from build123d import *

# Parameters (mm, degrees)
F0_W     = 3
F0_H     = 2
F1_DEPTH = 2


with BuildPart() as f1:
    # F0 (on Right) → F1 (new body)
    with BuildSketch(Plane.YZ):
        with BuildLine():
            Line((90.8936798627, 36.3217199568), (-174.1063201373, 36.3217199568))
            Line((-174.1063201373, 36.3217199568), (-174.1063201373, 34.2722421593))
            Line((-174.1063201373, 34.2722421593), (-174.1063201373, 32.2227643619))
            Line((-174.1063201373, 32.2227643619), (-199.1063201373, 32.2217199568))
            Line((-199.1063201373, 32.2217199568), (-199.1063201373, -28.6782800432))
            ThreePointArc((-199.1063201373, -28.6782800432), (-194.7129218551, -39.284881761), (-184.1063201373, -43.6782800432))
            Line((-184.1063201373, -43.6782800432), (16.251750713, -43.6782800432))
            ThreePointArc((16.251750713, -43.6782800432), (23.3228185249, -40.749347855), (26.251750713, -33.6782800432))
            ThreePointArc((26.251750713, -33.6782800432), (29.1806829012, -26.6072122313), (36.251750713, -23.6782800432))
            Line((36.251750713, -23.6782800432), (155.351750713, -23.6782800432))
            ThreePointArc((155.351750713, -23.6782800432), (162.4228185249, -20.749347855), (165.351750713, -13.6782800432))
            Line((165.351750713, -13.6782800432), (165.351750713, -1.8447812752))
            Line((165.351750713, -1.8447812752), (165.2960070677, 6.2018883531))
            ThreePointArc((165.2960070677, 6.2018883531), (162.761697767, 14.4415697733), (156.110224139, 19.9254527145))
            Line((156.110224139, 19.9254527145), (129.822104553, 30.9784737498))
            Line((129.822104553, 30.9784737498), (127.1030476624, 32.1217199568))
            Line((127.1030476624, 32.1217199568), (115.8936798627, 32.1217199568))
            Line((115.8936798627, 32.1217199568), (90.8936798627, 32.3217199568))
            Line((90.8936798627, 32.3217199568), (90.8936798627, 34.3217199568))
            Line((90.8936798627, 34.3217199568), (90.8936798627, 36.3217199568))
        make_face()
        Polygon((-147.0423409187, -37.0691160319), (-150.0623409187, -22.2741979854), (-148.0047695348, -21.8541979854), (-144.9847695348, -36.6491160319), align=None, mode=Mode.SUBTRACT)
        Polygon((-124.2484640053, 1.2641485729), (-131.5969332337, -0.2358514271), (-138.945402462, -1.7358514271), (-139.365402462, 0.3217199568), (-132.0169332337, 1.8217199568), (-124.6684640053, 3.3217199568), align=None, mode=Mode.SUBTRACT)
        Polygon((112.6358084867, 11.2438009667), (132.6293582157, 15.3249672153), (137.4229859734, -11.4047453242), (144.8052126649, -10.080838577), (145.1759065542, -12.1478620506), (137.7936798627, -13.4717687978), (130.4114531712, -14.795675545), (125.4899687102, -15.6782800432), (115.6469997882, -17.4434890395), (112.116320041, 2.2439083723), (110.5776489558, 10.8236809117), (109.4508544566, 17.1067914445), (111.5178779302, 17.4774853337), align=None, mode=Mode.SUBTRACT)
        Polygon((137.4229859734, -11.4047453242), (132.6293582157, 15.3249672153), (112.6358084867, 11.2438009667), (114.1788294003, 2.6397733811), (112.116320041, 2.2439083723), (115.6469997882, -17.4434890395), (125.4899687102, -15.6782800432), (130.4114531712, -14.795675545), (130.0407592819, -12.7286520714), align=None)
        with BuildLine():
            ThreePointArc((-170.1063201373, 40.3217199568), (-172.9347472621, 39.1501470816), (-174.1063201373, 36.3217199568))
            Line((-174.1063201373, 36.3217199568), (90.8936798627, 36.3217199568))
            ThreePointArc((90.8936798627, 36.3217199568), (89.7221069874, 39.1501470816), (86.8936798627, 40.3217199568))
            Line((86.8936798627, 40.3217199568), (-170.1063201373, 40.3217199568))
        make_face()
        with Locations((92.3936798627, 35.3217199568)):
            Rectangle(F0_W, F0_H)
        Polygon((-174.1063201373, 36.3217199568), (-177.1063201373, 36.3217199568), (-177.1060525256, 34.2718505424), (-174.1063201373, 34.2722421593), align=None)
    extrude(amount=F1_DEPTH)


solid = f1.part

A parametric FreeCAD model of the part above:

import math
import FreeCAD as App
import Part
import Sketcher

V = App.Vector
Q = App.Units.Quantity


def add_polygon(sketch, points):
    """Adds a closed chain of lines whose ends are joined by coincident constraints."""
    first, n = sketch.GeometryCount, len(points)
    for a, b in zip(points, points[1:] + points[:1]):
        sketch.addGeometry(Part.LineSegment(App.Vector(*a, 0), App.Vector(*b, 0)), False)
    for i in range(n):
        sketch.addConstraint(Sketcher.Constraint("Coincident", first + i, 2, first + (i + 1) % n, 1))

doc = App.newDocument("Part")
params = doc.addObject("Spreadsheet::Sheet", "Params")
for row, (alias, value) in enumerate([
    ("sketch1_radius", "15 mm"),
    ("sketch1_radius2", "10 mm"),
    ("sketch1_radius3", "4 mm"),
    ("sketch1_width", "3 mm"),
    ("sketch1_width2", "257 mm"),
    ("pad1_length", "2 mm"),
], start=1):
    params.set(f"A{row}", alias)
    params.set(f"B{row}", "=" + value)
    params.setAlias(f"B{row}", alias)

body = doc.addObject("PartDesign::Body", "Body")

sketch1 = body.newObject("Sketcher::SketchObject", "Sketch")
sketch1.AttachmentSupport = (doc.getObject("YZ_Plane"), [""])
sketch1.MapMode = "FlatFace"
sketch1.addGeometry(Part.LineSegment(V(-174.1, 34.3, 0), V(-174.1, 32.2, 0)), False)
sketch1.addGeometry(Part.LineSegment(V(-174.1, 32.2, 0), V(-199.1, 32.2, 0)), False)
sketch1.addGeometry(Part.LineSegment(V(-199.1, 32.2, 0), V(-199.1, -28.7, 0)), False)
sketch1.addGeometry(Part.ArcOfCircle(Part.Circle(V(-184.1, -28.7, 0), V(0, 0, 1), 15), math.radians(180), math.radians(270)), False)
sketch1.addGeometry(Part.LineSegment(V(-184.1, -43.7, 0), V(16.3, -43.7, 0)), False)
sketch1.addGeometry(Part.ArcOfCircle(Part.Circle(V(16.3, -33.7, 0), V(0, 0, 1), 10), math.radians(-90), math.radians(0)), False)
sketch1.addGeometry(Part.ArcOfCircle(Part.Circle(V(36.3, -33.7, 0), V(0, 0, 1), 10), math.radians(90), math.radians(180)), False)
sketch1.addGeometry(Part.LineSegment(V(36.3, -23.7, 0), V(155.4, -23.7, 0)), False)
sketch1.addGeometry(Part.ArcOfCircle(Part.Circle(V(155.4, -13.7, 0), V(0, 0, 1), 10), math.radians(-90), math.radians(0)), False)
sketch1.addGeometry(Part.LineSegment(V(165.4, -13.7, 0), V(165.4, -1.8, 0)), False)
sketch1.addGeometry(Part.LineSegment(V(165.4, -1.8, 0), V(165.3, 6.2, 0)), False)
sketch1.addGeometry(Part.ArcOfCircle(Part.Circle(V(150.3, 6.1, 0), V(0, 0, 1), 15), math.radians(0), math.radians(67)), False)
sketch1.addGeometry(Part.LineSegment(V(156.1, 19.9, 0), V(129.8, 31, 0)), False)
sketch1.addGeometry(Part.LineSegment(V(129.8, 31, 0), V(127.1, 32.1, 0)), False)
sketch1.addGeometry(Part.LineSegment(V(127.1, 32.1, 0), V(115.9, 32.1, 0)), False)
sketch1.addGeometry(Part.LineSegment(V(115.9, 32.1, 0), V(90.9, 32.3, 0)), False)
sketch1.addGeometry(Part.LineSegment(V(90.9, 32.3, 0), V(90.9, 34.3, 0)), False)
sketch1.addGeometry(Part.LineSegment(V(90.9, 34.3, 0), V(93.9, 34.3, 0)), False)
sketch1.addGeometry(Part.LineSegment(V(93.9, 34.3, 0), V(93.9, 36.3, 0)), False)
sketch1.addGeometry(Part.LineSegment(V(93.9, 36.3, 0), V(90.9, 36.3, 0)), False)
sketch1.addGeometry(Part.ArcOfCircle(Part.Circle(V(86.9, 36.3, 0), V(0, 0, 1), 4), math.radians(0), math.radians(90)), False)
sketch1.addGeometry(Part.LineSegment(V(86.9, 40.3, 0), V(-170.1, 40.3, 0)), False)
sketch1.addGeometry(Part.ArcOfCircle(Part.Circle(V(-170.1, 36.3, 0), V(0, 0, 1), 4), math.radians(90), math.radians(180)), False)
sketch1.addGeometry(Part.LineSegment(V(-174.1, 36.3, 0), V(-177.1, 36.3, 0)), False)
sketch1.addGeometry(Part.LineSegment(V(-177.1, 36.3, 0), V(-177.1, 34.3, 0)), False)
sketch1.addGeometry(Part.LineSegment(V(-177.1, 34.3, 0), V(-174.1, 34.3, 0)), False)
add_polygon(sketch1, [(-145, -36.6), (-147, -37.1), (-150.1, -22.3), (-148, -21.9)])
add_polygon(sketch1, [(-124.7, 3.3), (-124.2, 1.3), (-131.6, -0.2), (-138.9, -1.7), (-139.4, 0.3), (-132, 1.8)])
add_polygon(sketch1, [(111.5, 17.5), (112.6, 11.2), (114.2, 2.6), (112.1, 2.2), (110.6, 10.8), (109.5, 17.1)])
add_polygon(sketch1, [(144.8, -10.1), (145.2, -12.1), (130.4, -14.8), (130, -12.7)])
sketch1.addConstraint([
    Sketcher.Constraint("Coincident", 0, 2, 1, 1),
    Sketcher.Constraint("Coincident", 1, 2, 2, 1),
    Sketcher.Constraint("Tangent", 2, 2, 3, 1),
    Sketcher.Constraint("Tangent", 3, 2, 4, 1),
    Sketcher.Constraint("Tangent", 4, 2, 5, 1),
    Sketcher.Constraint("Tangent", 5, 2, 6, 2),
    Sketcher.Constraint("Tangent", 6, 1, 7, 1),
    Sketcher.Constraint("Tangent", 7, 2, 8, 1),
    Sketcher.Constraint("Tangent", 8, 2, 9, 1),
    Sketcher.Constraint("Coincident", 9, 2, 10, 1),
    Sketcher.Constraint("Tangent", 10, 2, 11, 1),
    Sketcher.Constraint("Tangent", 11, 2, 12, 1),
    Sketcher.Constraint("Coincident", 12, 2, 13, 1),
    Sketcher.Constraint("Coincident", 13, 2, 14, 1),
    Sketcher.Constraint("Coincident", 14, 2, 15, 1),
    Sketcher.Constraint("Coincident", 15, 2, 16, 1),
    Sketcher.Constraint("Coincident", 16, 2, 17, 1),
    Sketcher.Constraint("Coincident", 17, 2, 18, 1),
    Sketcher.Constraint("Coincident", 18, 2, 19, 1),
    Sketcher.Constraint("Coincident", 19, 2, 20, 1),
    Sketcher.Constraint("Tangent", 20, 2, 21, 1),
    Sketcher.Constraint("Tangent", 21, 2, 22, 1),
    Sketcher.Constraint("Coincident", 22, 2, 23, 1),
    Sketcher.Constraint("Coincident", 23, 2, 24, 1),
    Sketcher.Constraint("Coincident", 24, 2, 25, 1),
    Sketcher.Constraint("Coincident", 25, 2, 0, 1),
    Sketcher.Constraint("Vertical", 0),
    Sketcher.Constraint("Vertical", 2),
    Sketcher.Constraint("Horizontal", 4),
    Sketcher.Constraint("Horizontal", 7),
    Sketcher.Constraint("Vertical", 9),
    Sketcher.Constraint("Horizontal", 14),
    Sketcher.Constraint("Vertical", 16),
    Sketcher.Constraint("Horizontal", 17),
    Sketcher.Constraint("Vertical", 18),
    Sketcher.Constraint("Horizontal", 19),
    Sketcher.Constraint("Horizontal", 21),
    Sketcher.Constraint("Horizontal", 23),
    Sketcher.Constraint("Equal", 5, 6),
    Sketcher.Constraint("Equal", 6, 8),
    Sketcher.Constraint("Equal", 3, 11),
    Sketcher.Constraint("Equal", 20, 22),
    Sketcher.Constraint("Parallel", 12, 13),
    Sketcher.Constraint("Perpendicular", 24, 25),
    Sketcher.Constraint("Perpendicular", 26, 27),
    Sketcher.Constraint("Perpendicular", 27, 28),
    Sketcher.Constraint("Perpendicular", 28, 29),
    Sketcher.Constraint("Parallel", 29, 30),
    Sketcher.Constraint("Perpendicular", 30, 31),
    Sketcher.Constraint("Parallel", 31, 32),
    Sketcher.Constraint("Perpendicular", 32, 33),
    Sketcher.Constraint("Perpendicular", 33, 34),
    Sketcher.Constraint("Parallel", 34, 35),
    Sketcher.Constraint("Parallel", 36, 37),
    Sketcher.Constraint("Parallel", 37, 39),
    Sketcher.Constraint("Parallel", 39, 40),
    Sketcher.Constraint("Perpendicular", 40, 41),
    Sketcher.Constraint("Perpendicular", 41, 42),
    Sketcher.Constraint("Perpendicular", 42, 43),
    Sketcher.Constraint("Perpendicular", 43, 44),
    Sketcher.Constraint("Perpendicular", 44, 45),
    Sketcher.Constraint("Horizontal", 5, 3, 6, 3),
    Sketcher.Constraint("Horizontal", 22, 3, 18, 2),
    Sketcher.Constraint("Horizontal", 19, 2, 22, 2),
    Sketcher.Constraint("Vertical", 16, 2, 19, 2),
    Sketcher.Constraint("Vertical", 0, 2, 22, 2),
    Sketcher.Constraint("Equal", 19, 23),
    Sketcher.Constraint("Equal", 16, 18),
    Sketcher.Constraint("Equal", 28, 30),
    Sketcher.Constraint("Equal", 31, 32),
    Sketcher.Constraint("Equal", 32, 34),
    Sketcher.Constraint("Equal", 33, 41),
    Sketcher.Constraint("Equal", 41, 42),
    Sketcher.Constraint("Radius", 3, Q("15 mm")),
    Sketcher.Constraint("Radius", 5, Q("10 mm")),
    Sketcher.Constraint("Radius", 20, Q("4 mm")),
    Sketcher.Constraint("DistanceX", 17, 1, 17, 2, Q("3 mm")),
    Sketcher.Constraint("DistanceX", 21, 2, 21, 1, Q("257 mm")),
    Sketcher.Constraint("DistanceY", 16, 1, 16, 2, Q("2 mm")),
    Sketcher.Constraint("Distance", 1, Q("25 mm")),
    Sketcher.Constraint("Distance", 43, Q("15 mm")),
    Sketcher.Constraint("DistanceX", 7, 1, 7, 2, Q("119.1 mm")),
    Sketcher.Constraint("DistanceY", 2, 2, 2, 1, Q("60.9 mm")),
    Sketcher.Constraint("DistanceY", 8, 3, 20, 3, Q("50 mm")),
    Sketcher.Constraint("DistanceX", 20, 3, 14, 2, Q("29 mm")),
    Sketcher.Constraint("DistanceY", 32, 2, 30, 2, Q("3 mm")),
    Sketcher.Constraint("Distance", 26, Q("2.1 mm")),
    Sketcher.Constraint("Distance", 27, Q("15.1 mm")),
    Sketcher.Constraint("Distance", 31, Q("7.5 mm")),
    Sketcher.Constraint("DistanceY", 13, 2, 20, 3, Q("4.2 mm")),
    Sketcher.Constraint("DistanceY", 9, 1, 9, 2, Q("11.833499 mm")),
    Sketcher.Constraint("DistanceX", 4, 1, 4, 2, Q("200.358071 mm")),
    Sketcher.Constraint("DistanceY", -1, 1, 36, 2, Q("11.243801 mm")),
    Sketcher.Constraint("DistanceY", 37, 2, 12, 2, Q("28.3387 mm")),
    Sketcher.Constraint("DistanceX", 39, 2, 13, 2, Q("16.525399 mm")),
    Sketcher.Constraint("Distance", 24, Q("2.049869 mm")),
    Sketcher.Constraint("Distance", 39, Q("8.716651 mm")),
    Sketcher.Constraint("Distance", 40, Q("6.383349 mm")),
    Sketcher.Constraint("DistanceX", 14, 2, 14, 1, Q("11.209368 mm")),
    Sketcher.Constraint("DistanceY", 0, 2, 0, 1, Q("2.049478 mm")),
    Sketcher.Constraint("DistanceX", 3, 3, -1, 1, Q("184.10632 mm")),
    Sketcher.Constraint("DistanceY", 3, 3, -1, 1, Q("28.67828 mm")),
    Sketcher.Constraint("DistanceY", -1, 1, 10, 2, Q("6.201888 mm")),
    Sketcher.Constraint("DistanceX", 26, 2, -1, 1, Q("147.042341 mm")),
    Sketcher.Constraint("DistanceY", -1, 1, 30, 2, Q("1.264149 mm")),
    Sketcher.Constraint("DistanceX", -1, 1, 36, 2, Q("112.635808 mm")),
    Sketcher.Constraint("DistanceX", -1, 1, 37, 2, Q("114.178829 mm")),
    Sketcher.Constraint("DistanceX", -1, 1, 38, 2, Q("112.11632 mm")),
    Sketcher.Constraint("DistanceX", -1, 1, 44, 2, Q("130.040759 mm")),
    Sketcher.Constraint("DistanceY", 45, 2, -1, 1, Q("10.080839 mm")),
    Sketcher.Constraint("DistanceY", 9, 2, 11, 3, Q("7.942759 mm")),
    Sketcher.Constraint("DistanceY", 24, 2, 25, 2, Q("0.000392 mm")),
    Sketcher.Constraint("DistanceY", 26, 2, 0, 2, Q("69.29188 mm")),
    Sketcher.Constraint("DistanceX", 27, 2, 32, 2, Q("11.116938 mm")),
])
sketch1.setExpression("Constraints[93]", "Params.sketch1_radius")
sketch1.setExpression("Constraints[94]", "Params.sketch1_radius2")
sketch1.setExpression("Constraints[95]", "Params.sketch1_radius3")
sketch1.setExpression("Constraints[96]", "Params.sketch1_width")
sketch1.setExpression("Constraints[97]", "Params.sketch1_width2")
pad1 = body.newObject("PartDesign::Pad", "Pad")
pad1.Profile = sketch1
pad1.setExpression("Length", "Params.pad1_length")

doc.recompute()
